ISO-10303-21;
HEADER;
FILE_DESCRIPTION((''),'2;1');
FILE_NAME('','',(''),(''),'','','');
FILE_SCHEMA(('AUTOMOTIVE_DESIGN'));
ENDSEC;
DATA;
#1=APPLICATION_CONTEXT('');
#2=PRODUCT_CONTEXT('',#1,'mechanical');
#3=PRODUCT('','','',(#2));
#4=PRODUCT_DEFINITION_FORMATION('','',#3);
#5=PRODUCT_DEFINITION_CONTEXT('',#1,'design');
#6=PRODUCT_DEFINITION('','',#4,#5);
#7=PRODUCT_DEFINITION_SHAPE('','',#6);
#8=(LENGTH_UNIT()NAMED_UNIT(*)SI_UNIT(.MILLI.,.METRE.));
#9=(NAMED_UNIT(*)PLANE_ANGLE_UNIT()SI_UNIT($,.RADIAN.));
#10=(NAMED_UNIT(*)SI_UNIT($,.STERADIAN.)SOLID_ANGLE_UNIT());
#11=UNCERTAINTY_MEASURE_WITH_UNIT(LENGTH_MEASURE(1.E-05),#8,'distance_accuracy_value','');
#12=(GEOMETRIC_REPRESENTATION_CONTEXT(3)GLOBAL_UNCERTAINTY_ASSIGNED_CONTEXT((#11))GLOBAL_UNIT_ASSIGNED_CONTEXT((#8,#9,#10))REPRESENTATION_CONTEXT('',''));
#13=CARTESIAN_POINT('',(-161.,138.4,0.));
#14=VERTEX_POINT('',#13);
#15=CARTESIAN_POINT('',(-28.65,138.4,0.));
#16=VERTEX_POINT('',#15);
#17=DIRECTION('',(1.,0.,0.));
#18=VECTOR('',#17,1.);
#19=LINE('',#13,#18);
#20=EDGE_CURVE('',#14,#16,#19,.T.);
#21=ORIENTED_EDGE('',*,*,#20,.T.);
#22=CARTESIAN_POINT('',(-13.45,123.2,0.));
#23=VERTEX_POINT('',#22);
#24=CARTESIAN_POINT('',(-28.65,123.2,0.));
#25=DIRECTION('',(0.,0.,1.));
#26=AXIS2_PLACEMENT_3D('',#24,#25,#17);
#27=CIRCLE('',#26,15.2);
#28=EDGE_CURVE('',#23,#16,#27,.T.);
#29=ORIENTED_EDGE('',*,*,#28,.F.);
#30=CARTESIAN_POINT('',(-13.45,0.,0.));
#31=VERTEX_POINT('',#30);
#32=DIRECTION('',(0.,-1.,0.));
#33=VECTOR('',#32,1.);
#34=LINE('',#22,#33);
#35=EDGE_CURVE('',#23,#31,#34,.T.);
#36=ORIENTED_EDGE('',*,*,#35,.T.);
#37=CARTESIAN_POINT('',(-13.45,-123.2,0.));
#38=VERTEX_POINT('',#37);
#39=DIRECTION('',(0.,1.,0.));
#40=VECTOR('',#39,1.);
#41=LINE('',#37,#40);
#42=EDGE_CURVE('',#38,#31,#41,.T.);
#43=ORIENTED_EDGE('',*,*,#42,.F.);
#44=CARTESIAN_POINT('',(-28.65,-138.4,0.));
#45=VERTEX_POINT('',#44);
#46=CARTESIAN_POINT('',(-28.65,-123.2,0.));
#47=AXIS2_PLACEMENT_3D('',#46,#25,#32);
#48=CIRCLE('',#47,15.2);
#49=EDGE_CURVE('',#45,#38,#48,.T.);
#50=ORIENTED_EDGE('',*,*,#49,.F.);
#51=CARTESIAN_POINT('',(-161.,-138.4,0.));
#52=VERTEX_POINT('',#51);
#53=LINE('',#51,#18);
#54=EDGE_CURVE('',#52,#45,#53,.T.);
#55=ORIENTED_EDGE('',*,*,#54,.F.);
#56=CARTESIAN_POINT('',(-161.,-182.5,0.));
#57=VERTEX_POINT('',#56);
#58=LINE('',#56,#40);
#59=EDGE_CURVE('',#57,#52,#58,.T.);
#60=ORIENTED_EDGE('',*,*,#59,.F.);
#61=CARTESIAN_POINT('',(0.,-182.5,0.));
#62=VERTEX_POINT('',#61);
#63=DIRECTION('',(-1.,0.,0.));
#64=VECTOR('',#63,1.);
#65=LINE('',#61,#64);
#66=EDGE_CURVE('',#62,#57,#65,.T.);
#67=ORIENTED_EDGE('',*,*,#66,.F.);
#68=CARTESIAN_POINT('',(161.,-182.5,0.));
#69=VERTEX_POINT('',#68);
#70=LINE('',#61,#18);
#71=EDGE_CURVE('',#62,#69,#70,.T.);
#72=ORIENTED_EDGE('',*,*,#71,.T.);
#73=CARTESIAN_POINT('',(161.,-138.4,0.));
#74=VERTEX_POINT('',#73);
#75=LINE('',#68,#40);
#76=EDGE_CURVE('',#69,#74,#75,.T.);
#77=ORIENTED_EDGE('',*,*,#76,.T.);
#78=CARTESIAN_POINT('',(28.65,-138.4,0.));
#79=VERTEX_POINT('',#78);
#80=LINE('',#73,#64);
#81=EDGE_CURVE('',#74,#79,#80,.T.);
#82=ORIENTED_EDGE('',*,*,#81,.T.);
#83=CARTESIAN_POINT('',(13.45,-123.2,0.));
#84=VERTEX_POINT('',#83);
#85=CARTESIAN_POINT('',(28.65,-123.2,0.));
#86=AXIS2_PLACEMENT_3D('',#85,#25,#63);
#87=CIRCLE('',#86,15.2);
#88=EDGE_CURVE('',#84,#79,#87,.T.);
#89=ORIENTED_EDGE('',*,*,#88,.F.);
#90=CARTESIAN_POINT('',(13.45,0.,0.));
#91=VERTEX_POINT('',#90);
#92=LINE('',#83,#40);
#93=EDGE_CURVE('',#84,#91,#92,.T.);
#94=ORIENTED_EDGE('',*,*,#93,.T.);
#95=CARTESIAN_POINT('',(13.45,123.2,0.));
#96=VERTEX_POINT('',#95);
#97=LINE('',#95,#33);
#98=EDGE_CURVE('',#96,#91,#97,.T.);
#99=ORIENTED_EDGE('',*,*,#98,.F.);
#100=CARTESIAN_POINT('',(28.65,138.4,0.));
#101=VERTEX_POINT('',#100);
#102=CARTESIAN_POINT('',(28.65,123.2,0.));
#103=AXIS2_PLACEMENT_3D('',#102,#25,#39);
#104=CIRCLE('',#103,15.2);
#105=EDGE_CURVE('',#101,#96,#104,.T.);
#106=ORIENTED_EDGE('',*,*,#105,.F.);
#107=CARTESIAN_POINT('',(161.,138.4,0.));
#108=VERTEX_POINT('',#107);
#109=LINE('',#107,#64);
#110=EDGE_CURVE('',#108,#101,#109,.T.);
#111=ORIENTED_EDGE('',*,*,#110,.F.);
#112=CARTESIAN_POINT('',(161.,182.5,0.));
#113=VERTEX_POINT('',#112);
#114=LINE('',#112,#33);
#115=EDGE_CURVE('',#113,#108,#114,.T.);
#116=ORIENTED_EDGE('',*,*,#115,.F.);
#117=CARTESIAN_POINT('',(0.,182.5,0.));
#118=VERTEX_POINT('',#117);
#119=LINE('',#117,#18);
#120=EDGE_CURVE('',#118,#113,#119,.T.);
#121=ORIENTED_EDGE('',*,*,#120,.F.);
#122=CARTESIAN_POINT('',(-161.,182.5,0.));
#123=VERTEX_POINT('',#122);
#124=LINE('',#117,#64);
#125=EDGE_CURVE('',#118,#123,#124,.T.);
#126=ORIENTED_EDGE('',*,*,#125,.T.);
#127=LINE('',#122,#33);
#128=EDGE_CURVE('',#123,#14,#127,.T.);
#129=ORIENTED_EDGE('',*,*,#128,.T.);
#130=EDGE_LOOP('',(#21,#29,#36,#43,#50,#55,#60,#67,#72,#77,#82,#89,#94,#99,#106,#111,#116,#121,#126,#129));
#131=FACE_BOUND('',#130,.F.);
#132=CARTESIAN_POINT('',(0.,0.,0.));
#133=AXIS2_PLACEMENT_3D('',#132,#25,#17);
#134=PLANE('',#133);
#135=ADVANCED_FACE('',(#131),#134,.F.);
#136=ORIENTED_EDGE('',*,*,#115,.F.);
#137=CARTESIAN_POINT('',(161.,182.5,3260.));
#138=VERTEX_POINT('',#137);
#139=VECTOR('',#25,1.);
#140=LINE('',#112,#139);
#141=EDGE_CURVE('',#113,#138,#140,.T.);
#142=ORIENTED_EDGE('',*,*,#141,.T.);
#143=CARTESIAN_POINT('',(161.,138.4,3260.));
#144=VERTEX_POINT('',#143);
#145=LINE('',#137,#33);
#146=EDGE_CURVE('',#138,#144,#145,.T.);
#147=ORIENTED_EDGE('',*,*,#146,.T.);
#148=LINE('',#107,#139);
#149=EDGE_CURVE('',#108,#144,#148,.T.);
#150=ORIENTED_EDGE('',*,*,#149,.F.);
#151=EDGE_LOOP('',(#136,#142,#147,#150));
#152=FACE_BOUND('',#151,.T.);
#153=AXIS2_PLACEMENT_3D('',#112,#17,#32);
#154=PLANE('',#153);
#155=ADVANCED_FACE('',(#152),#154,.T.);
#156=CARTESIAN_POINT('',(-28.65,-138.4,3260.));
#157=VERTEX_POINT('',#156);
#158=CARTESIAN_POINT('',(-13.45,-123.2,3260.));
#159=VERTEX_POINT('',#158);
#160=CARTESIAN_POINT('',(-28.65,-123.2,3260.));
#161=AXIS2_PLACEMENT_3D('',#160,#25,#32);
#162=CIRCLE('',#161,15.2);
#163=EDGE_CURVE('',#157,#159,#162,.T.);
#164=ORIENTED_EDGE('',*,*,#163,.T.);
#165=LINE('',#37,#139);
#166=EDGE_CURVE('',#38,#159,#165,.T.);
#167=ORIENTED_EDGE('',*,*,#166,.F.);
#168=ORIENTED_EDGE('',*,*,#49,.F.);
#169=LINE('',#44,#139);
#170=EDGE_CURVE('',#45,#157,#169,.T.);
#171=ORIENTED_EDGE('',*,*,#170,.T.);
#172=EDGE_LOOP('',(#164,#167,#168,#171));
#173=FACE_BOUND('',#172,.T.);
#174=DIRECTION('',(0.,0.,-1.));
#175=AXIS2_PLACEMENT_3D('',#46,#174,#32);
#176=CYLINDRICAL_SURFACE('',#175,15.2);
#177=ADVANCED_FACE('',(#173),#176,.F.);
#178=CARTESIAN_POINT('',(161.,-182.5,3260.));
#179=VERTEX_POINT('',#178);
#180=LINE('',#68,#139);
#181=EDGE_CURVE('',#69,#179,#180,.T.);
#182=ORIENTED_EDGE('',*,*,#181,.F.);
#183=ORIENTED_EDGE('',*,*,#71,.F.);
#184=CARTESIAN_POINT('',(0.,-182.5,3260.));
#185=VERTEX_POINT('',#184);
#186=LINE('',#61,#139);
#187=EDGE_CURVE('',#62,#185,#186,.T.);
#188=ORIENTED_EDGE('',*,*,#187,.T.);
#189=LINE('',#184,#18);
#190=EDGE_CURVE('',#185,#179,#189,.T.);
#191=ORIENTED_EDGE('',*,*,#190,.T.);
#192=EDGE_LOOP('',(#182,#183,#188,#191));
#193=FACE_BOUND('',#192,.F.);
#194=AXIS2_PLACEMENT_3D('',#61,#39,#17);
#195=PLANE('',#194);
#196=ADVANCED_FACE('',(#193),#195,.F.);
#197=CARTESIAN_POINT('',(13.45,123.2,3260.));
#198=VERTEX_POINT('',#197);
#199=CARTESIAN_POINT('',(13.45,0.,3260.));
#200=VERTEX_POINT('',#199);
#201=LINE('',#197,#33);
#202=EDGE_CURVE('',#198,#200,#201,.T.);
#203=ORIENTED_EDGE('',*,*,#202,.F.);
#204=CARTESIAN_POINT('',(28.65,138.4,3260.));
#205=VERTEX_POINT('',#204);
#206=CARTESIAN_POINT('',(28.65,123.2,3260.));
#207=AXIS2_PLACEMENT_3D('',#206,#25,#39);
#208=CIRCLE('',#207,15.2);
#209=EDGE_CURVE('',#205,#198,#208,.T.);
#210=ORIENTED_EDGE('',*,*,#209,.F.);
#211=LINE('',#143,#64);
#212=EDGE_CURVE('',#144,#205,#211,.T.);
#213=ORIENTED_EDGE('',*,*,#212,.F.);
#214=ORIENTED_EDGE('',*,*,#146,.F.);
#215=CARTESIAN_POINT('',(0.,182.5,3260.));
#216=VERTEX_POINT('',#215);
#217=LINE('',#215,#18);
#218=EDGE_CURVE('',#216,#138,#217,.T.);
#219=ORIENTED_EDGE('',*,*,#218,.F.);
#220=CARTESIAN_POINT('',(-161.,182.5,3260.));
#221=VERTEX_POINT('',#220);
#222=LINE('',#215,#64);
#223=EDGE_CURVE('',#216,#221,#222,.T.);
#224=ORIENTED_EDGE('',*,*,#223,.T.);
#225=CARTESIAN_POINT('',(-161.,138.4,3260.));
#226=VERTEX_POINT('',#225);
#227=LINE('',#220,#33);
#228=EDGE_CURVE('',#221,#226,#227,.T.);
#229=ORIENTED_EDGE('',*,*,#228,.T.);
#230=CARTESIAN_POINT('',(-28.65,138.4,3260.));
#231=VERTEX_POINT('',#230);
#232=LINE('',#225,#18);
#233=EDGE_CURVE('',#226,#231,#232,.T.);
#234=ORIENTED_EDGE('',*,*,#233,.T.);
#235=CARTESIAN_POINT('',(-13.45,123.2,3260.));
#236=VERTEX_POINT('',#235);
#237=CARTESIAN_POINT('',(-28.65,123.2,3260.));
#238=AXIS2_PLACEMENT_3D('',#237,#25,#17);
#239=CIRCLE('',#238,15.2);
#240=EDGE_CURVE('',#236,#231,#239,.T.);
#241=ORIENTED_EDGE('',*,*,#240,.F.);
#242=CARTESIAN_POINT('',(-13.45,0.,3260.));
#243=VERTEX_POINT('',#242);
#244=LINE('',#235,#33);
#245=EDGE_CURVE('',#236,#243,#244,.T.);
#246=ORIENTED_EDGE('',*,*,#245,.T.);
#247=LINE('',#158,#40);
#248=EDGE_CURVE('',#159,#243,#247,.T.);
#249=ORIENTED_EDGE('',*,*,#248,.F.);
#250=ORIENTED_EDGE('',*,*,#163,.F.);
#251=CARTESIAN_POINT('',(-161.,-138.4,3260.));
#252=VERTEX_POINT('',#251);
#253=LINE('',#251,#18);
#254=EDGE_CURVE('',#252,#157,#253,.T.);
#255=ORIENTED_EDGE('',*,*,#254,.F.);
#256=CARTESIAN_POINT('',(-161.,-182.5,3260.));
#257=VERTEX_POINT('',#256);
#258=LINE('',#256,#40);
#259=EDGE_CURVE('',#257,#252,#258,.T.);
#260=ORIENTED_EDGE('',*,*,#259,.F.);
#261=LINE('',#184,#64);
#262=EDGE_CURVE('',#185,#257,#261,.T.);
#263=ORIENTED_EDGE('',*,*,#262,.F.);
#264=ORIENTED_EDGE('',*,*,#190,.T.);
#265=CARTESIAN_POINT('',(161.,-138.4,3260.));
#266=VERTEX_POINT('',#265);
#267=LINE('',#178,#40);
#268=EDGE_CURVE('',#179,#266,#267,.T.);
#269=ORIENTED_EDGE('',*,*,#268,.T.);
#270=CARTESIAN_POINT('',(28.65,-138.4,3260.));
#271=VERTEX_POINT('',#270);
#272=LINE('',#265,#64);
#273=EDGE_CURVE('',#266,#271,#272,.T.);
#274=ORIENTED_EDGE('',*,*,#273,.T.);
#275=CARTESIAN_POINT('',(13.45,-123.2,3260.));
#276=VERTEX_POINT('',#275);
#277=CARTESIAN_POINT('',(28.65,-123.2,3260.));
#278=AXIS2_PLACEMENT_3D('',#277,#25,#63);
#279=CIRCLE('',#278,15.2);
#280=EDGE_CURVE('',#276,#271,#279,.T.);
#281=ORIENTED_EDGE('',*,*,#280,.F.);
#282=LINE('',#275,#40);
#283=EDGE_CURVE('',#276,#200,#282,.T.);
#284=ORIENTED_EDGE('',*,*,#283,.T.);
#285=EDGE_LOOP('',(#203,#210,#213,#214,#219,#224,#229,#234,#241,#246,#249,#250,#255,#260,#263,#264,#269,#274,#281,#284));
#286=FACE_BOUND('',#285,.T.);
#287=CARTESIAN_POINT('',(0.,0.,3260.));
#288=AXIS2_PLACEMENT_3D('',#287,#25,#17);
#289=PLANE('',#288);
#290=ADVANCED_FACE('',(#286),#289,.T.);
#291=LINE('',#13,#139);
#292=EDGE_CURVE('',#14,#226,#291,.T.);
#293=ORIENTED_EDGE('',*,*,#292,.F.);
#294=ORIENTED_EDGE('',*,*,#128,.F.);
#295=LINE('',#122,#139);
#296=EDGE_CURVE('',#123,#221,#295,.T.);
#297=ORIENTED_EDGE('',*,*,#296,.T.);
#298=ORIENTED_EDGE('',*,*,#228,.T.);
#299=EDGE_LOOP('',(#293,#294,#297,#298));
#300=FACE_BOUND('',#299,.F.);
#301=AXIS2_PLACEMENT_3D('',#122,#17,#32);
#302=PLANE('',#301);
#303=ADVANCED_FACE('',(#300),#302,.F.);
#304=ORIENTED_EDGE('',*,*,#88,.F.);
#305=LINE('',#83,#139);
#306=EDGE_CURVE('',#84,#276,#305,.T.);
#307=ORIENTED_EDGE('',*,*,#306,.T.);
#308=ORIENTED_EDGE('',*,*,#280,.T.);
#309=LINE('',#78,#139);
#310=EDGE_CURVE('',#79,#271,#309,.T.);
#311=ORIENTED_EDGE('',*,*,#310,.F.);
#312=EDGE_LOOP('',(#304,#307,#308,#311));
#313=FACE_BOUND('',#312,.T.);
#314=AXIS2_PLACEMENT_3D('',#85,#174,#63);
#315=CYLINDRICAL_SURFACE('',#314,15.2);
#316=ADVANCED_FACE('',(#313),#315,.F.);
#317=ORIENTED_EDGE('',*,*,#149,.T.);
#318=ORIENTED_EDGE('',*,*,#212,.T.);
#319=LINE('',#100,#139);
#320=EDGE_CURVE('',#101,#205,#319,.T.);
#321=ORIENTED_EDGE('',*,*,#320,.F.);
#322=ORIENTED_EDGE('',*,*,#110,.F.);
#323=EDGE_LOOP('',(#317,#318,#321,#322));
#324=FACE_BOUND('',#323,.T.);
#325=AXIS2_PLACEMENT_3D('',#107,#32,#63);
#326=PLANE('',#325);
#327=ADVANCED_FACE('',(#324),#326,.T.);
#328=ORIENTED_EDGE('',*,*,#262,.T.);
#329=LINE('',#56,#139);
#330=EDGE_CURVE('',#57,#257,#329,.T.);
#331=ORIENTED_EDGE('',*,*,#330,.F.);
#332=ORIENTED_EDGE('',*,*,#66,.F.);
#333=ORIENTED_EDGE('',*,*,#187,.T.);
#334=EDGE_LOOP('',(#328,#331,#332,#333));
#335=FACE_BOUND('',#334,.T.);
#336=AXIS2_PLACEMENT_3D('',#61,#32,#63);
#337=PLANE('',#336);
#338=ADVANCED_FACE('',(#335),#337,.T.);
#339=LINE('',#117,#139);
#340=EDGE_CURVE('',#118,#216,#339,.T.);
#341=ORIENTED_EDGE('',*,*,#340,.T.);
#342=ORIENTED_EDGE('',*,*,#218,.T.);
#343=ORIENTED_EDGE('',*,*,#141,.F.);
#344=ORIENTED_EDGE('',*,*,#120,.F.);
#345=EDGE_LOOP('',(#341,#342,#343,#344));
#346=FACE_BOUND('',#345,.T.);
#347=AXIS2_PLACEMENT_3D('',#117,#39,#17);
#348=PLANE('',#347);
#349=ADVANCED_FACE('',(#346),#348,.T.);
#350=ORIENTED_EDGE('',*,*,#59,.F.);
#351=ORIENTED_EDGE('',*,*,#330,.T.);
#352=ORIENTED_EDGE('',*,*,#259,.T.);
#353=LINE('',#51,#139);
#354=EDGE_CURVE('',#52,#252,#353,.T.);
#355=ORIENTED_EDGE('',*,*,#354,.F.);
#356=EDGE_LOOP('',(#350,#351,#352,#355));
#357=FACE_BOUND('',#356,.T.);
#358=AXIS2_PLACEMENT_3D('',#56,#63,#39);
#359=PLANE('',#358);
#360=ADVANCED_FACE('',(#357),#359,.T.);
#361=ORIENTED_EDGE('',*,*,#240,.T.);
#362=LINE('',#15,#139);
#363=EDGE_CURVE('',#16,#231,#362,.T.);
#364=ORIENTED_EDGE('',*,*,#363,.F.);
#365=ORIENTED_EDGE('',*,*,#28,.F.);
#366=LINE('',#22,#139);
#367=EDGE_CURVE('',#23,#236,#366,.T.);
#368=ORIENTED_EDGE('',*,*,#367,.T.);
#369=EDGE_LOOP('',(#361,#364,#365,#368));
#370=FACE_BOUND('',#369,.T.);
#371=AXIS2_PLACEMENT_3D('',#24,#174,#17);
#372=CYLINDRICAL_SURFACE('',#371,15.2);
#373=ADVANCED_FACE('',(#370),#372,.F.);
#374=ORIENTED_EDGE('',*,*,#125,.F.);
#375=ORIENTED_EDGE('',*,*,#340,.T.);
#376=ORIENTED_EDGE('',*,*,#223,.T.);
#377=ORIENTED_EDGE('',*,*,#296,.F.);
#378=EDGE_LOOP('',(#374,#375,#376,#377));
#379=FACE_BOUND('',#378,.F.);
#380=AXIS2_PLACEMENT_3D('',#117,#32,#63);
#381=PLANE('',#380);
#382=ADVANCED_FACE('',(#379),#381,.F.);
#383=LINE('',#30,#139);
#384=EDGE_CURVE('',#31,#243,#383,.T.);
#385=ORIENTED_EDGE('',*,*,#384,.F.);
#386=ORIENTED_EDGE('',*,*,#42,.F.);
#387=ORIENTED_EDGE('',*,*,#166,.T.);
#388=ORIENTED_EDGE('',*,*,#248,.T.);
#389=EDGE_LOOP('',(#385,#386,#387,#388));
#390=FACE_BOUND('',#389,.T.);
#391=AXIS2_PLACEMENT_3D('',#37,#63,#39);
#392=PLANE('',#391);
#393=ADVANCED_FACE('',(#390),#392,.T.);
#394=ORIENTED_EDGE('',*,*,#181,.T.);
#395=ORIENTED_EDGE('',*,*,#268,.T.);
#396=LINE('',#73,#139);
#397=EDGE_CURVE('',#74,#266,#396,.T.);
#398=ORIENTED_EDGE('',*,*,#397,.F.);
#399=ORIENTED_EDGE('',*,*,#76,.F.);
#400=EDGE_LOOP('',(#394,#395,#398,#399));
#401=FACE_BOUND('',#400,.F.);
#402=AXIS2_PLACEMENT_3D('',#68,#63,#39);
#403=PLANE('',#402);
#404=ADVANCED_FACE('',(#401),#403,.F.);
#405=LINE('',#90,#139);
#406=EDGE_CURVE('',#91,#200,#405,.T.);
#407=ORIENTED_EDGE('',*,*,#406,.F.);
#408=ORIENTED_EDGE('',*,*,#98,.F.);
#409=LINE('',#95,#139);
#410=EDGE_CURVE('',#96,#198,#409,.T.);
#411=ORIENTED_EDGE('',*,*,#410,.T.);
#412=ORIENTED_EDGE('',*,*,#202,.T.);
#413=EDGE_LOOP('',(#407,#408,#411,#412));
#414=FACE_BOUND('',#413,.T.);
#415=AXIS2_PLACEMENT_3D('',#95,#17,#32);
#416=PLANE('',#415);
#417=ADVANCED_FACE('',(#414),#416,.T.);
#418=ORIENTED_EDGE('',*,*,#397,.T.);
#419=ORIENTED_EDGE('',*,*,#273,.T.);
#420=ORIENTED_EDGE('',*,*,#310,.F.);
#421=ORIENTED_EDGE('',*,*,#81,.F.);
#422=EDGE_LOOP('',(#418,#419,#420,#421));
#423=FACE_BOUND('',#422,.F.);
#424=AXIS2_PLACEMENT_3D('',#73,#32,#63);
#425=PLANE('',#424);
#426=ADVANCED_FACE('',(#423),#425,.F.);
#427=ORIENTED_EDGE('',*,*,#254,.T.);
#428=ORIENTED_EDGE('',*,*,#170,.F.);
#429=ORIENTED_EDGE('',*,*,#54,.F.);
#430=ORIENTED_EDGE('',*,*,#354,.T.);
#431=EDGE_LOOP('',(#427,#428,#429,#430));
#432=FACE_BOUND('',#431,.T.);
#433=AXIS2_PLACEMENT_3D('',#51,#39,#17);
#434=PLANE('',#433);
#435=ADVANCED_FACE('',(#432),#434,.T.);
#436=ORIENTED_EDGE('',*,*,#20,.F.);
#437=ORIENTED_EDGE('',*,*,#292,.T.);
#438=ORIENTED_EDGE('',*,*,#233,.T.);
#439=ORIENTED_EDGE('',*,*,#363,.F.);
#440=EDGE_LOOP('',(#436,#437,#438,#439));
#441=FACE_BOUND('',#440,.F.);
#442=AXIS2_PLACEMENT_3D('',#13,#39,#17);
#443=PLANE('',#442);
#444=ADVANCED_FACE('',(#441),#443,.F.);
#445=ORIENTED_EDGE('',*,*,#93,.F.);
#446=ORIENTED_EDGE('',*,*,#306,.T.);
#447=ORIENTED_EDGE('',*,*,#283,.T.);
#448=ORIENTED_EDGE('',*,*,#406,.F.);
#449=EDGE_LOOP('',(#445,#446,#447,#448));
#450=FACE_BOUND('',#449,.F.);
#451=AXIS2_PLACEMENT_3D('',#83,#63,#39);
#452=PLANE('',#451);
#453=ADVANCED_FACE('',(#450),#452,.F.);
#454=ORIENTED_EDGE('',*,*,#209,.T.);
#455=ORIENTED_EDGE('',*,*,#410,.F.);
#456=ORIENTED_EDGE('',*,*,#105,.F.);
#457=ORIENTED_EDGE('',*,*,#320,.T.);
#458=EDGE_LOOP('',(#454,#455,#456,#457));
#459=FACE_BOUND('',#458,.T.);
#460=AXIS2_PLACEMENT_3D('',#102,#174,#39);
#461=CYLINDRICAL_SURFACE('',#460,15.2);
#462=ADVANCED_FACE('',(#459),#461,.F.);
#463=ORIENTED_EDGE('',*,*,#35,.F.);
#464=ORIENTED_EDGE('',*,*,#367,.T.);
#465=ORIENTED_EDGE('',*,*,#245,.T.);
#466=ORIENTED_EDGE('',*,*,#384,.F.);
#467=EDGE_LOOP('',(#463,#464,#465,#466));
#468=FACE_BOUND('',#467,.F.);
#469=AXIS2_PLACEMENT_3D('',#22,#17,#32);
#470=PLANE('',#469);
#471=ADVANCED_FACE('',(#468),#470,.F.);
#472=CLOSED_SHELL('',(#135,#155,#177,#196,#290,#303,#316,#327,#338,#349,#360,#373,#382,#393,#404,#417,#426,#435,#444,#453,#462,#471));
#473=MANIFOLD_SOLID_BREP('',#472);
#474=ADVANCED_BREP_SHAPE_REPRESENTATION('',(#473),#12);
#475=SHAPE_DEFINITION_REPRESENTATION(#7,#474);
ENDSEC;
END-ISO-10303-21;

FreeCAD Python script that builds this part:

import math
import FreeCAD as App
import Part
import Sketcher

V = App.Vector

doc = App.newDocument("Part")
body = doc.addObject("PartDesign::Body", "Body")

# Sketch on XY plane
sketch1 = body.newObject("Sketcher::SketchObject", "Sketch")
sketch1.AttachmentSupport = (doc.getObject("XY_Plane"), [""])
sketch1.MapMode = "FlatFace"
sketch1.addGeometry(Part.LineSegment(V(-161, -138, 0), V(-161, -182, 0)), False)
sketch1.addGeometry(Part.LineSegment(V(-161, -182, 0), V(161, -182, 0)), False)
sketch1.addGeometry(Part.LineSegment(V(161, -182, 0), V(161, -138, 0)), False)
sketch1.addGeometry(Part.LineSegment(V(161, -138, 0), V(29, -138, 0)), False)
sketch1.addGeometry(Part.ArcOfCircle(Part.Circle(V(29, -123, 0), V(0, 0, 1), 15), math.radians(180), math.radians(270)), False)
sketch1.addGeometry(Part.LineSegment(V(13, -123, 0), V(13, 123, 0)), False)
sketch1.addGeometry(Part.ArcOfCircle(Part.Circle(V(29, 123, 0), V(0, 0, 1), 15), math.radians(90), math.radians(180)), False)
sketch1.addGeometry(Part.LineSegment(V(29, 138, 0), V(161, 138, 0)), False)
sketch1.addGeometry(Part.LineSegment(V(161, 138, 0), V(161, 182, 0)), False)
sketch1.addGeometry(Part.LineSegment(V(161, 182, 0), V(-161, 182, 0)), False)
sketch1.addGeometry(Part.LineSegment(V(-161, 182, 0), V(-161, 138, 0)), False)
sketch1.addGeometry(Part.LineSegment(V(-161, 138, 0), V(-29, 138, 0)), False)
sketch1.addGeometry(Part.ArcOfCircle(Part.Circle(V(-29, 123, 0), V(0, 0, 1), 15), math.radians(0), math.radians(90)), False)
sketch1.addGeometry(Part.LineSegment(V(-13, 123, 0), V(-13, -123, 0)), False)
sketch1.addGeometry(Part.ArcOfCircle(Part.Circle(V(-29, -123, 0), V(0, 0, 1), 15), math.radians(-90), math.radians(0)), False)
sketch1.addGeometry(Part.LineSegment(V(-29, -138, 0), V(-161, -138, 0)), False)
sketch1.addConstraint(Sketcher.Constraint("Coincident", 0, 2, 1, 1))
sketch1.addConstraint(Sketcher.Constraint("Coincident", 1, 2, 2, 1))
sketch1.addConstraint(Sketcher.Constraint("Coincident", 2, 2, 3, 1))
sketch1.addConstraint(Sketcher.Constraint("Tangent", 3, 2, 4, 2))
sketch1.addConstraint(Sketcher.Constraint("Tangent", 4, 1, 5, 1))
sketch1.addConstraint(Sketcher.Constraint("Tangent", 5, 2, 6, 2))
sketch1.addConstraint(Sketcher.Constraint("Tangent", 6, 1, 7, 1))
sketch1.addConstraint(Sketcher.Constraint("Coincident", 7, 2, 8, 1))
sketch1.addConstraint(Sketcher.Constraint("Coincident", 8, 2, 9, 1))
sketch1.addConstraint(Sketcher.Constraint("Coincident", 9, 2, 10, 1))
sketch1.addConstraint(Sketcher.Constraint("Coincident", 10, 2, 11, 1))
sketch1.addConstraint(Sketcher.Constraint("Tangent", 11, 2, 12, 2))
sketch1.addConstraint(Sketcher.Constraint("Tangent", 12, 1, 13, 1))
sketch1.addConstraint(Sketcher.Constraint("Tangent", 13, 2, 14, 2))
sketch1.addConstraint(Sketcher.Constraint("Tangent", 14, 1, 15, 1))
sketch1.addConstraint(Sketcher.Constraint("Coincident", 15, 2, 0, 1))
sketch1.addConstraint(Sketcher.Constraint("Vertical", 0))
sketch1.addConstraint(Sketcher.Constraint("Horizontal", 1))
sketch1.addConstraint(Sketcher.Constraint("Vertical", 2))
sketch1.addConstraint(Sketcher.Constraint("Horizontal", 3))
sketch1.addConstraint(Sketcher.Constraint("Vertical", 5))
sketch1.addConstraint(Sketcher.Constraint("Horizontal", 7))
sketch1.addConstraint(Sketcher.Constraint("Vertical", 8))
sketch1.addConstraint(Sketcher.Constraint("Horizontal", 9))
sketch1.addConstraint(Sketcher.Constraint("Vertical", 10))
sketch1.addConstraint(Sketcher.Constraint("Horizontal", 11))
sketch1.addConstraint(Sketcher.Constraint("Vertical", 13))
sketch1.addConstraint(Sketcher.Constraint("Horizontal", 15))
sketch1.addConstraint(Sketcher.Constraint("Equal", 4, 6))
sketch1.addConstraint(Sketcher.Constraint("Equal", 6, 12))
sketch1.addConstraint(Sketcher.Constraint("Equal", 12, 14))
sketch1.addConstraint(Sketcher.Constraint("Symmetric", 4, 3, 12, 3, -1, 1))
sketch1.addConstraint(Sketcher.Constraint("Symmetric", 0, 2, 8, 2, -1, 1))
sketch1.addConstraint(Sketcher.Constraint("Symmetric", 7, 2, 10, 2, -2))
sketch1.addConstraint(Sketcher.Constraint("Symmetric", 2, 2, 15, 2, -2))
sketch1.addConstraint(Sketcher.Constraint("Radius", 4, 15.2))
sketch1.addConstraint(Sketcher.Constraint("DistanceY", 0, 2, 0, 1, 44.1))
sketch1.addConstraint(Sketcher.Constraint("DistanceX", 0, 2, -1, 1, 161.0))
sketch1.addConstraint(Sketcher.Constraint("DistanceY", 0, 2, -1, 1, 182.5))
sketch1.addConstraint(Sketcher.Constraint("DistanceX", -1, 1, 4, 1, 13.45))
pad1 = body.newObject("PartDesign::Pad", "Pad")
pad1.Profile = sketch1
pad1.Length = 3260

doc.recompute()
